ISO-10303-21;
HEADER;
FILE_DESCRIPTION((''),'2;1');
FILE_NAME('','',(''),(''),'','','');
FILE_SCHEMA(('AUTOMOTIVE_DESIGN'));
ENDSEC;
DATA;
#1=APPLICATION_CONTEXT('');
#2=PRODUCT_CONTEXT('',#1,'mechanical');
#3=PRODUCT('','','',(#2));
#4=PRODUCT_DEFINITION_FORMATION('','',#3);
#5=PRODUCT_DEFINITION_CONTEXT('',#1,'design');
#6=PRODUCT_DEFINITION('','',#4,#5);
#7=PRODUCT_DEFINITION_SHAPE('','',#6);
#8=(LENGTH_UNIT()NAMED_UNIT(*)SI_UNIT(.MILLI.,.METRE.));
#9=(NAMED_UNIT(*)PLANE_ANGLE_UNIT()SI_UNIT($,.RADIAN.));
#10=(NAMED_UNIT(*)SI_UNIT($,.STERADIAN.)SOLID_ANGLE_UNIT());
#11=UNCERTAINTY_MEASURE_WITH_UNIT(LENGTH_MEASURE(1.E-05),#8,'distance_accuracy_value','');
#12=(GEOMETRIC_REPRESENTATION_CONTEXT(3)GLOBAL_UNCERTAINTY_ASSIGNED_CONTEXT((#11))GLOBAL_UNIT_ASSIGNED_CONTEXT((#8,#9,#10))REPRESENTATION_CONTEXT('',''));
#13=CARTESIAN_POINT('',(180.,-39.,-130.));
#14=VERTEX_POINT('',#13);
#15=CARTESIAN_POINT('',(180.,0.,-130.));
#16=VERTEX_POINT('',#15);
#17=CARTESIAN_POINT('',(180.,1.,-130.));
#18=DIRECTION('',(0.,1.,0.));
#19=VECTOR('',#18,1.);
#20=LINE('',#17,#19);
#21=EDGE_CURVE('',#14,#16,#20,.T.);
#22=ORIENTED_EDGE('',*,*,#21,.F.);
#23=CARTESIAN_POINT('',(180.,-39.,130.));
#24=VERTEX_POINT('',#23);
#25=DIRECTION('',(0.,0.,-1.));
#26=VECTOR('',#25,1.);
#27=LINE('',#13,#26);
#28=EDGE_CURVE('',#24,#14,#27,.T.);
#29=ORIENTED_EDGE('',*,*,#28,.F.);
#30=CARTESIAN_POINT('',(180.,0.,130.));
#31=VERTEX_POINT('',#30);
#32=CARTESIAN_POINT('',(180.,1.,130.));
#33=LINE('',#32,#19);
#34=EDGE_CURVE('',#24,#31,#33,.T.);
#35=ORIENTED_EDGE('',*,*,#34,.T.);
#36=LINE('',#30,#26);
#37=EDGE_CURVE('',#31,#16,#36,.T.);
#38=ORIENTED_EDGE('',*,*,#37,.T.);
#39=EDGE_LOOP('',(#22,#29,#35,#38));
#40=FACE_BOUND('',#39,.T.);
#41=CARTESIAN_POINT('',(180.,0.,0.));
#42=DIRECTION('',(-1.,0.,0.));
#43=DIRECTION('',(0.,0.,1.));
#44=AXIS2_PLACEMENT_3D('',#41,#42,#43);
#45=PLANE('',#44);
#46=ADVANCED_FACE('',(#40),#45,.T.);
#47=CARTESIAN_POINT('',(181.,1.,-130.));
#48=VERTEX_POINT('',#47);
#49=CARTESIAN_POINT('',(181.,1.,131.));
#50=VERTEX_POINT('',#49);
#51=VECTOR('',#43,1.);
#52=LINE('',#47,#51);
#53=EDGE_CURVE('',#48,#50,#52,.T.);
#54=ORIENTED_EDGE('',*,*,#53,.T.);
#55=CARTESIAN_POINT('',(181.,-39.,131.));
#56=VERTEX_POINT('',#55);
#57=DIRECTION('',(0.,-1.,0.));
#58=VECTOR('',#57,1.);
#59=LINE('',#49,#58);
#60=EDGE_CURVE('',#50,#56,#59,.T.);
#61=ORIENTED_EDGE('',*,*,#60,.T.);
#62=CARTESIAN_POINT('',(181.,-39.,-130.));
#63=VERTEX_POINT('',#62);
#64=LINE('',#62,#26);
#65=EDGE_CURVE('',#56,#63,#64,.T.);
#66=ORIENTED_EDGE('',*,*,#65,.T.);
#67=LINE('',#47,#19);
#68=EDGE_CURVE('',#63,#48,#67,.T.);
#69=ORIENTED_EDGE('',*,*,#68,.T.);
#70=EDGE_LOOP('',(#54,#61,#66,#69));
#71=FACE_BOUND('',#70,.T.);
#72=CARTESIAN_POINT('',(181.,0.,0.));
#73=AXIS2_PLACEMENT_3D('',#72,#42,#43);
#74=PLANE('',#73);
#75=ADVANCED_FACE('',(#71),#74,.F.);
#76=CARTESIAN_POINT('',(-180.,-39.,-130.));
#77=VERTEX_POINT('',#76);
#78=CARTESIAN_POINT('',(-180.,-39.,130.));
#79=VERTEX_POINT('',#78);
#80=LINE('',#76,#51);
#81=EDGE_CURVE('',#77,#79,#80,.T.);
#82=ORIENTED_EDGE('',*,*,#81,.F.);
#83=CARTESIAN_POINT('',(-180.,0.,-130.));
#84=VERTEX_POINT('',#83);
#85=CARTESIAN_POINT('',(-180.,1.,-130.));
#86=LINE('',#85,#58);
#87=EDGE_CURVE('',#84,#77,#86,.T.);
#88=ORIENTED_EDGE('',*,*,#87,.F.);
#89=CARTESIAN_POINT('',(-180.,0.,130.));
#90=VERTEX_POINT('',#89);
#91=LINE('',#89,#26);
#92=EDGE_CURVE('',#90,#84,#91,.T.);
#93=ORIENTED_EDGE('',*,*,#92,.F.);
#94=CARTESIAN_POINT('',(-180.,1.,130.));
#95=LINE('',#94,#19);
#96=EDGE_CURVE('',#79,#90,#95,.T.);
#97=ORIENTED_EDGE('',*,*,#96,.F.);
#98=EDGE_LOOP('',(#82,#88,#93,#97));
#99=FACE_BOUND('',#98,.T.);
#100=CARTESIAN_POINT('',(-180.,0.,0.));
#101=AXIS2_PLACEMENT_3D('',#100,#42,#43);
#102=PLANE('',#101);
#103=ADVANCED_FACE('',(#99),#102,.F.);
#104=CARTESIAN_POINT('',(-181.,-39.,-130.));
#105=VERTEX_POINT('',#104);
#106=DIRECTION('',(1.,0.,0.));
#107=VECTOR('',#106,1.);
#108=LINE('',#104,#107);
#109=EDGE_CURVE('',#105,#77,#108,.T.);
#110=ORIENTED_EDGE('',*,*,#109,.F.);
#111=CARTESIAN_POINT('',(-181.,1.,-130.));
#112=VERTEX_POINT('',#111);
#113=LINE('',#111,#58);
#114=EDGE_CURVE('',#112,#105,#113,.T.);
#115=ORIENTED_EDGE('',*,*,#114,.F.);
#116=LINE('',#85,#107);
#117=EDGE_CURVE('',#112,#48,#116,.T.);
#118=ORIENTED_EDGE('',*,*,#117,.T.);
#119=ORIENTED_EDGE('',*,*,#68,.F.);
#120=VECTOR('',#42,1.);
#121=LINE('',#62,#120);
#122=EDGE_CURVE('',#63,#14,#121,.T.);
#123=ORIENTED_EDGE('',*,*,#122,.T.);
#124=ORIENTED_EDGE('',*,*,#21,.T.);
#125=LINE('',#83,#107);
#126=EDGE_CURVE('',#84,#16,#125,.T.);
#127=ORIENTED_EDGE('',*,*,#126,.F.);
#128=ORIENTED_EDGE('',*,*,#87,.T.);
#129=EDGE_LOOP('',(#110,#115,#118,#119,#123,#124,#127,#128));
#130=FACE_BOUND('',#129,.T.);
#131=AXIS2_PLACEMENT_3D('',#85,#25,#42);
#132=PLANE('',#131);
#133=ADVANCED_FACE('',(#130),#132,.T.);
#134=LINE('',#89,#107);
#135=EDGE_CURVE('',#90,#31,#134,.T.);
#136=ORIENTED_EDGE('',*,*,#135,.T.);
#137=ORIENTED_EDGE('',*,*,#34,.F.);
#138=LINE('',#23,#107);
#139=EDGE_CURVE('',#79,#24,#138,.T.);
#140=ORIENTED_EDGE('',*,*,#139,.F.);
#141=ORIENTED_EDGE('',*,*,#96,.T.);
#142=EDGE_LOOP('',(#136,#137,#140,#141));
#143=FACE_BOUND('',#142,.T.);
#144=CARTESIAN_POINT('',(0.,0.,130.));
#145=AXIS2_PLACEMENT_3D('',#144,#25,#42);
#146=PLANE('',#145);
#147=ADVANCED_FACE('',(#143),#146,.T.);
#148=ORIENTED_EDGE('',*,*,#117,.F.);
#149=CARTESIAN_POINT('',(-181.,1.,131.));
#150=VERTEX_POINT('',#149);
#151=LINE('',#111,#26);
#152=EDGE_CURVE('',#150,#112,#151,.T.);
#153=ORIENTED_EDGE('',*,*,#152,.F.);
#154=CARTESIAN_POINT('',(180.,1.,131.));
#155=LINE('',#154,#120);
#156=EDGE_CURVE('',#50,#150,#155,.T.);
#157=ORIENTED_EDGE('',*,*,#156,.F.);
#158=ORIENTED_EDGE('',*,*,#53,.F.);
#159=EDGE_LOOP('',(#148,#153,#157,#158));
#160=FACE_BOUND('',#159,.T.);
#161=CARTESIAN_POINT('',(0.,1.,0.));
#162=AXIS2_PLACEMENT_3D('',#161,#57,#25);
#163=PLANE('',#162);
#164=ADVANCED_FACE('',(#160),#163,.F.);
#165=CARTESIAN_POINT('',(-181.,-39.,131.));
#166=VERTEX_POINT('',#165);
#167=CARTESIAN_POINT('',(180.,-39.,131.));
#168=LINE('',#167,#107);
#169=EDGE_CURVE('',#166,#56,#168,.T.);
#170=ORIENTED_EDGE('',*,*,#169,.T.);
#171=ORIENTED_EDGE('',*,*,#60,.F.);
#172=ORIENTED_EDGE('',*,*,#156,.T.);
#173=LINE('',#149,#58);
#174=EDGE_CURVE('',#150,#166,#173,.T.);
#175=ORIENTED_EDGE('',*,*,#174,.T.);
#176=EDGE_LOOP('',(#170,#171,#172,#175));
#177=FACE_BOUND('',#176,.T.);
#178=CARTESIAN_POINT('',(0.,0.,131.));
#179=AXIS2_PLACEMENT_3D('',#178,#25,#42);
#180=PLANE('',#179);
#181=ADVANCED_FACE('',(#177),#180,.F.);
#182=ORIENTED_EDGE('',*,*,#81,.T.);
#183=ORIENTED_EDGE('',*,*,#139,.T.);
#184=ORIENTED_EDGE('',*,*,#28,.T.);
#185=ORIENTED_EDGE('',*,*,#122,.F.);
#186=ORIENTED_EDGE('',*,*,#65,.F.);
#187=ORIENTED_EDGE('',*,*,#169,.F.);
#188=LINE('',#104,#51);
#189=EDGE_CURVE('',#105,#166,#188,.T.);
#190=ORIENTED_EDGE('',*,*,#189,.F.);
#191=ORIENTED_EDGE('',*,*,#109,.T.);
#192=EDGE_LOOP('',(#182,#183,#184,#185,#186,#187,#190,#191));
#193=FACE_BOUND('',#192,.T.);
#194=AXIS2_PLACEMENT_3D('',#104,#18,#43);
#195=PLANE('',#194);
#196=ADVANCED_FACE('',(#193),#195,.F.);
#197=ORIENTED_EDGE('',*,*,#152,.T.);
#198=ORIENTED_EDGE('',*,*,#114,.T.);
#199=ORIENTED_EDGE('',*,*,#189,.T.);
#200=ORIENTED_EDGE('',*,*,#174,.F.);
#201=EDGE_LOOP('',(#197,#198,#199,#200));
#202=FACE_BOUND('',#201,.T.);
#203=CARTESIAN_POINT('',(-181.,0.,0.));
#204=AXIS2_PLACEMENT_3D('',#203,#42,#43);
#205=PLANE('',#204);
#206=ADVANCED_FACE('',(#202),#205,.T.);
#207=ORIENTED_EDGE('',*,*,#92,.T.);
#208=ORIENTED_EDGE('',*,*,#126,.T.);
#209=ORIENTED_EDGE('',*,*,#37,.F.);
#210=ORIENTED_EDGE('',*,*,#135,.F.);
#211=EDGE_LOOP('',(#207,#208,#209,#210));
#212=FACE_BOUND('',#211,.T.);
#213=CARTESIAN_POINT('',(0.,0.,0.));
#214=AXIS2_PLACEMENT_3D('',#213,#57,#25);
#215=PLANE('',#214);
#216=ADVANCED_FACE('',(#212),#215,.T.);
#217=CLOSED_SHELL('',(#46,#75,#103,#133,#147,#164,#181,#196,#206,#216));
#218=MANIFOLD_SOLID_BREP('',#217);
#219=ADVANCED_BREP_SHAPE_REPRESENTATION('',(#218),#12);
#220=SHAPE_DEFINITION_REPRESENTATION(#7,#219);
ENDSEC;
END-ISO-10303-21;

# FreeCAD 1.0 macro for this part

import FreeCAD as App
import Part
import Sketcher
from FreeCAD import Vector
Q = App.Units.Quantity


def add_polygon(sketch, points):
    """Adds a closed chain of lines whose ends are joined by coincident constraints."""
    first, n = sketch.GeometryCount, len(points)
    for a, b in zip(points, points[1:] + points[:1]):
        sketch.addGeometry(Part.LineSegment(App.Vector(*a, 0), App.Vector(*b, 0)), False)
    for i in range(n):
        sketch.addConstraint(Sketcher.Constraint("Coincident", first + i, 2, first + (i + 1) % n, 1))

doc = App.newDocument("Part")
body = doc.addObject("PartDesign::Body", "Body")

sketch1 = body.newObject("Sketcher::SketchObject", "Sketch")
sketch1.AttachmentSupport = (doc.getObject("XZ_Plane"), [""])
sketch1.MapMode = "FlatFace"
add_polygon(sketch1, [(-180, -130), (-180, 130), (180, 130), (180, -130)])
sketch1.addConstraint(Sketcher.Constraint("Vertical", 0))
sketch1.addConstraint(Sketcher.Constraint("Horizontal", 1))
sketch1.addConstraint(Sketcher.Constraint("Vertical", 2))
sketch1.addConstraint(Sketcher.Constraint("Horizontal", 3))
sketch1.addConstraint(Sketcher.Constraint("Symmetric", 0, 2, 2, 2, -1, 1))
sketch1.addConstraint(Sketcher.Constraint("DistanceX", 1, 1, 1, 2, Q("360 mm")))
sketch1.addConstraint(Sketcher.Constraint("DistanceY", 0, 1, 0, 2, Q("260 mm")))
pad1 = body.newObject("PartDesign::Pad", "Pad")
pad1.Profile = sketch1
pad1.Length = 1
pad1.Reversed = True

sketch2 = body.newObject("Sketcher::SketchObject", "Sketch001")
sketch2.AttachmentSupport = (doc.getObject("YZ_Plane"), [""])
sketch2.MapMode = "FlatFace"
sketch2.AttachmentOffset = App.Placement(Vector(0, 0, -180), App.Rotation())
add_polygon(sketch2, [(1, -130), (-39, -130), (-39, 130), (1, 130)])
sketch2.addConstraint(Sketcher.Constraint("Horizontal", 0))
sketch2.addConstraint(Sketcher.Constraint("Vertical", 1))
sketch2.addConstraint(Sketcher.Constraint("Horizontal", 2))
sketch2.addConstraint(Sketcher.Constraint("Vertical", 3))
sketch2.addConstraint(Sketcher.Constraint("DistanceX", 0, 2, 0, 1, Q("40 mm")))
sketch2.addConstraint(Sketcher.Constraint("DistanceY", 1, 1, 1, 2, Q("260 mm")))
sketch2.addConstraint(Sketcher.Constraint("DistanceX", 0, 2, -1, 1, Q("39 mm")))
sketch2.addConstraint(Sketcher.Constraint("DistanceY", 0, 2, -1, 1, Q("130 mm")))
pad2 = body.newObject("PartDesign::Pad", "Pad001")
pad2.Profile = sketch2
pad2.Length = 1
pad2.Reversed = True

sketch3 = body.newObject("Sketcher::SketchObject", "Sketch002")
sketch3.AttachmentSupport = (doc.getObject("XY_Plane"), [""])
sketch3.MapMode = "FlatFace"
sketch3.AttachmentOffset = App.Placement(Vector(0, 0, 130), App.Rotation())
add_polygon(sketch3, [(-181, 1), (-181, -39), (180, -39), (180, 1)])
sketch3.addConstraint(Sketcher.Constraint("Vertical", 0))
sketch3.addConstraint(Sketcher.Constraint("Horizontal", 1))
sketch3.addConstraint(Sketcher.Constraint("Vertical", 2))
sketch3.addConstraint(Sketcher.Constraint("Horizontal", 3))
sketch3.addConstraint(Sketcher.Constraint("DistanceX", 1, 1, 1, 2, Q("361 mm")))
sketch3.addConstraint(Sketcher.Constraint("DistanceY", 0, 2, 0, 1, Q("40 mm")))
sketch3.addConstraint(Sketcher.Constraint("DistanceX", 0, 2, -1, 1, Q("181 mm")))
sketch3.addConstraint(Sketcher.Constraint("DistanceY", 0, 2, -1, 1, Q("39 mm")))
pad3 = body.newObject("PartDesign::Pad", "Pad002")
pad3.Profile = sketch3
pad3.Length = 1

sketch4 = body.newObject("Sketcher::SketchObject", "Sketch003")
sketch4.AttachmentSupport = (doc.getObject("YZ_Plane"), [""])
sketch4.MapMode = "FlatFace"
sketch4.AttachmentOffset = App.Placement(Vector(0, 0, 180), App.Rotation())
add_polygon(sketch4, [(1, 131), (-39, 131), (-39, -130), (1, -130)])
sketch4.addConstraint(Sketcher.Constraint("Horizontal", 0))
sketch4.addConstraint(Sketcher.Constraint("Vertical", 1))
sketch4.addConstraint(Sketcher.Constraint("Horizontal", 2))
sketch4.addConstraint(Sketcher.Constraint("Vertical", 3))
sketch4.addConstraint(Sketcher.Constraint("DistanceX", 0, 2, 0, 1, Q("40 mm")))
sketch4.addConstraint(Sketcher.Constraint("DistanceY", 1, 2, 1, 1, Q("261 mm")))
sketch4.addConstraint(Sketcher.Constraint("DistanceX", 0, 2, -1, 1, Q("39 mm")))
sketch4.addConstraint(Sketcher.Constraint("DistanceY", -1, 1, 0, 2, Q("131 mm")))
pad4 = body.newObject("PartDesign::Pad", "Pad003")
pad4.Profile = sketch4
pad4.Length = 1

doc.recompute()
